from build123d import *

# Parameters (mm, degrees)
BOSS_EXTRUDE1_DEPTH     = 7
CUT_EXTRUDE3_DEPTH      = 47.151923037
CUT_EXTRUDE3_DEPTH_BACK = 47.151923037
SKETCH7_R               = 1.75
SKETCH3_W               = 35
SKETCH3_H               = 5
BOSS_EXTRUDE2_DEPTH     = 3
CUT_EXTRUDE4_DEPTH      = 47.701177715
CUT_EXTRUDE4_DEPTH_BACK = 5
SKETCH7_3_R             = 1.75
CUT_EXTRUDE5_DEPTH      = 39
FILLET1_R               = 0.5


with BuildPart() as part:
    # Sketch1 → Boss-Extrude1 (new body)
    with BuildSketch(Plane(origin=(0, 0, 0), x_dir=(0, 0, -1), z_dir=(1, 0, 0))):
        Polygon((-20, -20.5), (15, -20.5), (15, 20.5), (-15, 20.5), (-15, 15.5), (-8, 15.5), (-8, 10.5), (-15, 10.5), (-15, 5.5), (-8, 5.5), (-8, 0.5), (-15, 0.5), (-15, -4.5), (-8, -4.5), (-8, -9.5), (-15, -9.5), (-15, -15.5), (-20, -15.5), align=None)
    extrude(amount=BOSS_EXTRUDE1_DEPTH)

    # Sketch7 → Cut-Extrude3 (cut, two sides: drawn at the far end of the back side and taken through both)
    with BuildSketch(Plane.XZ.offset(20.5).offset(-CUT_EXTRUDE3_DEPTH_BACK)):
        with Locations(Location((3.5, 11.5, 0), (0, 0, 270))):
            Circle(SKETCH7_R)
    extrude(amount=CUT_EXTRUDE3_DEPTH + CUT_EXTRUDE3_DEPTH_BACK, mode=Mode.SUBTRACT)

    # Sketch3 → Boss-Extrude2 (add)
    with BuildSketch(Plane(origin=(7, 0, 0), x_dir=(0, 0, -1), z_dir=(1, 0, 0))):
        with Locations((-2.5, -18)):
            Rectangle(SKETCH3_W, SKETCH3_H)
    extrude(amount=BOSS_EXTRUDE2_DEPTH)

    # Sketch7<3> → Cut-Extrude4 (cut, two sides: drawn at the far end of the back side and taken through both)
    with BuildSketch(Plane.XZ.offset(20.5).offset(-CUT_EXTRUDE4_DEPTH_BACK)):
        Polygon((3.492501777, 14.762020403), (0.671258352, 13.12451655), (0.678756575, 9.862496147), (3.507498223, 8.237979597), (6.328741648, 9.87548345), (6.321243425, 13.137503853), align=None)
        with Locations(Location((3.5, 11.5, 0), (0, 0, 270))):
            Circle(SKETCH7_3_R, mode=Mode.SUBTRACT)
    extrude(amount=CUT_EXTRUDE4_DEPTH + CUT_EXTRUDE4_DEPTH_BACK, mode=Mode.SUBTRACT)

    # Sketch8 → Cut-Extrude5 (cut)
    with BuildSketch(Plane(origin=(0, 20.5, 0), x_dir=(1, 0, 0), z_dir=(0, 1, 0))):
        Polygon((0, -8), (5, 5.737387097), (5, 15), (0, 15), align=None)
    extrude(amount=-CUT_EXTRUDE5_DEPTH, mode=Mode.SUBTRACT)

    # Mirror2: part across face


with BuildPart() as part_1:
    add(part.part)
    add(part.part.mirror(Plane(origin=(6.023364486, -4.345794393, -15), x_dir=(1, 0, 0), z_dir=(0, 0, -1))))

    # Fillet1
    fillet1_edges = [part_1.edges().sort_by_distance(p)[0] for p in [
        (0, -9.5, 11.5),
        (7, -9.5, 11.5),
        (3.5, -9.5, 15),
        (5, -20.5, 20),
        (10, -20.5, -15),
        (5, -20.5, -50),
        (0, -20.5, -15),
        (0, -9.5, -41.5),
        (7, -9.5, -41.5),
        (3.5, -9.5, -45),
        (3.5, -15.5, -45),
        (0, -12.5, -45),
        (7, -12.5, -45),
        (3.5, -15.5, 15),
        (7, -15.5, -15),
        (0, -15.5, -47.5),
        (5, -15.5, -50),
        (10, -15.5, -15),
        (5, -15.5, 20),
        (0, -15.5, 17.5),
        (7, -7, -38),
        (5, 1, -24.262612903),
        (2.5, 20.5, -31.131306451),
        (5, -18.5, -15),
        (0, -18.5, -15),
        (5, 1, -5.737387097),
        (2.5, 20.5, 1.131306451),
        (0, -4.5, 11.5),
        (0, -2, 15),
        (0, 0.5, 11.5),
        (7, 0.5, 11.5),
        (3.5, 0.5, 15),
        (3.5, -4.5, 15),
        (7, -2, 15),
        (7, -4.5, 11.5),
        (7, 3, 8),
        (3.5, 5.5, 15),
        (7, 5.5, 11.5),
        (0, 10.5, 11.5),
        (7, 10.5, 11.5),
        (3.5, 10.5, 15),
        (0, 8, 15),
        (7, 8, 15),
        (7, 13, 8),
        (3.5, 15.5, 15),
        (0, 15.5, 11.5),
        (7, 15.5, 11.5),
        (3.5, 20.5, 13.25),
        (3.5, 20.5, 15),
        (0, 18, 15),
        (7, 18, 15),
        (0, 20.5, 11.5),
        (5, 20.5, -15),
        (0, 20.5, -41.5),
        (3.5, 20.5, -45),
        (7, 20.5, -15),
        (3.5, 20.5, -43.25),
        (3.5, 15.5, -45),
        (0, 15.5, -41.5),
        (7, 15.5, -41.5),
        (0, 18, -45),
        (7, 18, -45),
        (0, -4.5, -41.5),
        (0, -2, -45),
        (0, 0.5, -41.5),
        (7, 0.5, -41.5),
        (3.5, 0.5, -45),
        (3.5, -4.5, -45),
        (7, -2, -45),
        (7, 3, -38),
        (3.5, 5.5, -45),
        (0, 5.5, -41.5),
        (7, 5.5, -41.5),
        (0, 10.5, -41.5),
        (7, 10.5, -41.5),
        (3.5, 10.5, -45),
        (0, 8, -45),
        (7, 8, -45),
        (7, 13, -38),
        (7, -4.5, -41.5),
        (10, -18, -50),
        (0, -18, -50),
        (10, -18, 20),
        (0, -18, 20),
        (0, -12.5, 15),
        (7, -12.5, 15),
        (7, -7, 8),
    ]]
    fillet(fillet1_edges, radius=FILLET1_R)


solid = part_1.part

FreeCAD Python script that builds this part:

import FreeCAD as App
import Part
import Sketcher
from FreeCAD import Vector
Q = App.Units.Quantity


def edges_at(feature, points):
    """Names of the edges that pass closest to the given points."""
    edges = feature.Shape.Edges
    near = lambda p: min(range(len(edges)), key=lambda i: edges[i].distToShape(Part.Vertex(*p))[0])
    return sorted({f"Edge{near(p) + 1}" for p in points})


def add_polygon(sketch, points):
    """Adds a closed chain of lines whose ends are joined by coincident constraints."""
    first, n = sketch.GeometryCount, len(points)
    for a, b in zip(points, points[1:] + points[:1]):
        sketch.addGeometry(Part.LineSegment(App.Vector(*a, 0), App.Vector(*b, 0)), False)
    for i in range(n):
        sketch.addConstraint(Sketcher.Constraint("Coincident", first + i, 2, first + (i + 1) % n, 1))

doc = App.newDocument("Part")
body = doc.addObject("PartDesign::Body", "Body")

# Sketch on YZ plane
sketch1 = doc.addObject("Sketcher::SketchObject", "Sketch")
body.addObject(sketch1)
sketch1.AttachmentSupport = (doc.YZ_Plane, [""])
sketch1.MapMode = "FlatFace"
add_polygon(sketch1, [(-20.5, 20), (-20.5, -15), (20.5, -15), (20.5, 15), (15.5, 15), (15.5, 8), (10.5, 8), (10.5, 15), (5.5, 15), (5.5, 8), (0.5, 8), (0.5, 15), (-4.5, 15), (-4.5, 8), (-9.5, 8), (-9.5, 15), (-15.5, 15), (-15.5, 20)])  # lines 0-17
sketch1.addConstraint(Sketcher.Constraint("Vertical", 0))
sketch1.addConstraint(Sketcher.Constraint("Horizontal", 1))
sketch1.addConstraint(Sketcher.Constraint("Vertical", 2))
sketch1.addConstraint(Sketcher.Constraint("Horizontal", 3))
sketch1.addConstraint(Sketcher.Constraint("Vertical", 4))
sketch1.addConstraint(Sketcher.Constraint("Horizontal", 5))
sketch1.addConstraint(Sketcher.Constraint("Vertical", 6))
sketch1.addConstraint(Sketcher.Constraint("Horizontal", 7))
sketch1.addConstraint(Sketcher.Constraint("Vertical", 8))
sketch1.addConstraint(Sketcher.Constraint("Horizontal", 9))
sketch1.addConstraint(Sketcher.Constraint("Vertical", 10))
sketch1.addConstraint(Sketcher.Constraint("Horizontal", 11))
sketch1.addConstraint(Sketcher.Constraint("Vertical", 12))
sketch1.addConstraint(Sketcher.Constraint("Horizontal", 13))
sketch1.addConstraint(Sketcher.Constraint("Vertical", 14))
sketch1.addConstraint(Sketcher.Constraint("Horizontal", 15))
sketch1.addConstraint(Sketcher.Constraint("Vertical", 16))
sketch1.addConstraint(Sketcher.Constraint("Horizontal", 17))
sketch1.addConstraint(Sketcher.Constraint("Symmetric", 0, 2, 2, 2, -1, 1))
sketch1.addConstraint(Sketcher.Constraint("Symmetric", 3, 2, 15, 2, -2))
sketch1.addConstraint(Sketcher.Constraint("Horizontal", 3, 2, 6, 2))
sketch1.addConstraint(Sketcher.Constraint("Horizontal", 5, 2, 8, 2))
sketch1.addConstraint(Sketcher.Constraint("Horizontal", 7, 2, 10, 2))
sketch1.addConstraint(Sketcher.Constraint("Horizontal", 9, 2, 12, 2))
sketch1.addConstraint(Sketcher.Constraint("Equal", 3, 5))
sketch1.addConstraint(Sketcher.Constraint("Equal", 5, 7))
sketch1.addConstraint(Sketcher.Constraint("Equal", 7, 9))
sketch1.addConstraint(Sketcher.Constraint("Equal", 9, 11))
sketch1.addConstraint(Sketcher.Constraint("Equal", 11, 13))
sketch1.addConstraint(Sketcher.Constraint("Equal", 17, 16))
sketch1.addConstraint(Sketcher.Constraint("DistanceX", 1, 1, 1, 2, 41.0))
sketch1.addConstraint(Sketcher.Constraint("DistanceX", 3, 2, 3, 1, 5.0))
sketch1.addConstraint(Sketcher.Constraint("DistanceY", 0, 2, 0, 1, 35.0))
sketch1.addConstraint(Sketcher.Constraint("DistanceY", 4, 2, 4, 1, 7.0))
pad1 = doc.addObject("PartDesign::Pad", "Pad")
body.addObject(pad1)
pad1.Profile = sketch1
pad1.Length = 7

# Sketch on XZ plane
sketch2 = doc.addObject("Sketcher::SketchObject", "Sketch001")
body.addObject(sketch2)
sketch2.AttachmentSupport = (doc.XZ_Plane, [""])
sketch2.MapMode = "FlatFace"
sketch2.AttachmentOffset = App.Placement(Vector(0, 0, 20.5), App.Rotation())
sketch2.addGeometry(Part.Circle(Vector(3.5, 11.5, 0), Vector(0, 0, 1), 1.75), False)
sketch2.addConstraint(Sketcher.Constraint("Diameter", 0, 3.5))
sketch2.addConstraint(Sketcher.Constraint("DistanceX", -1, 1, 0, 3, 3.5))
sketch2.addConstraint(Sketcher.Constraint("DistanceY", -1, 1, 0, 3, 11.5))
pocket1 = doc.addObject("PartDesign::Pocket", "Pocket")
body.addObject(pocket1)
pocket1.Profile = sketch2
pocket1.Type = "ThroughAll"
pocket1.Midplane = True

# Sketch on YZ plane
sketch3 = doc.addObject("Sketcher::SketchObject", "Sketch002")
body.addObject(sketch3)
sketch3.AttachmentSupport = (doc.YZ_Plane, [""])
sketch3.MapMode = "FlatFace"
sketch3.AttachmentOffset = App.Placement(Vector(0, 0, 7), App.Rotation())
add_polygon(sketch3, [(-15.5, 20), (-20.5, 20), (-20.5, -15), (-15.5, -15)])  # lines 0-3
sketch3.addConstraint(Sketcher.Constraint("Horizontal", 0))
sketch3.addConstraint(Sketcher.Constraint("Vertical", 1))
sketch3.addConstraint(Sketcher.Constraint("Horizontal", 2))
sketch3.addConstraint(Sketcher.Constraint("Vertical", 3))
sketch3.addConstraint(Sketcher.Constraint("DistanceX", 0, 2, 0, 1, 5.0))
sketch3.addConstraint(Sketcher.Constraint("DistanceY", 1, 2, 1, 1, 35.0))
sketch3.addConstraint(Sketcher.Constraint("DistanceY", -1, 1, 0, 2, 20.0))
sketch3.addConstraint(Sketcher.Constraint("DistanceX", 0, 2, -1, 1, 20.5))
pad2 = doc.addObject("PartDesign::Pad", "Pad001")
body.addObject(pad2)
pad2.Profile = sketch3
pad2.Length = 3

# Sketch on XZ plane
sketch4 = doc.addObject("Sketcher::SketchObject", "Sketch003")
body.addObject(sketch4)
sketch4.AttachmentSupport = (doc.XZ_Plane, [""])
sketch4.MapMode = "FlatFace"
sketch4.AttachmentOffset = App.Placement(Vector(0, 0, 20.5), App.Rotation())
add_polygon(sketch4, [(3.492502, 14.76202), (0.671258, 13.124517), (0.678757, 9.862496), (3.507498, 8.23798), (6.328742, 9.875483), (6.321243, 13.137504)])  # lines 0-5
sketch4.addGeometry(Part.Circle(Vector(3.5, 11.5, 0), Vector(0, 0, 1), 1.75), False)  # 6
sketch4.addConstraint(Sketcher.Constraint("Parallel", 0, 3))
sketch4.addConstraint(Sketcher.Constraint("Parallel", 1, 4))
sketch4.addConstraint(Sketcher.Constraint("Parallel", 2, 5))
sketch4.addConstraint(Sketcher.Constraint("Equal", 0, 1))
sketch4.addConstraint(Sketcher.Constraint("Equal", 1, 2))
sketch4.addConstraint(Sketcher.Constraint("Equal", 2, 3))
sketch4.addConstraint(Sketcher.Constraint("Diameter", 6, 3.5))
sketch4.addConstraint(Sketcher.Constraint("DistanceX", -1, 1, 6, 3, 3.5))
sketch4.addConstraint(Sketcher.Constraint("DistanceY", -1, 1, 6, 3, 11.5))
sketch4.addConstraint(Sketcher.Constraint("DistanceX", -1, 1, 2, 2, 3.507498))
sketch4.addConstraint(Sketcher.Constraint("DistanceX", -1, 1, 5, 2, 3.492502))
sketch4.addConstraint(Sketcher.Constraint("DistanceX", 0, 2, 1, 2, 0.007498))
sketch4.addConstraint(Sketcher.Constraint("Distance", 0, 3.262029))
sketch4.addConstraint(Sketcher.Constraint("DistanceX", -1, 1, 0, 2, 0.671258))
sketch4.addConstraint(Sketcher.Constraint("DistanceY", -1, 1, 2, 2, 8.23798))
pocket2 = doc.addObject("PartDesign::Pocket", "Pocket001")
body.addObject(pocket2)
pocket2.Profile = sketch4
pocket2.Type = "TwoLengths"
pocket2.Length = 47.701178
pocket2.Length2 = 5
pocket2.Reversed = True

# Sketch on XZ plane
sketch5 = doc.addObject("Sketcher::SketchObject", "Sketch004")
body.addObject(sketch5)
sketch5.AttachmentSupport = (doc.XZ_Plane, [""])
sketch5.MapMode = "FlatFace"
sketch5.AttachmentOffset = App.Placement(Vector(0, 0, -20.5), App.Rotation())
add_polygon(sketch5, [(0, 8), (5, -5.737387), (5, -15), (0, -15)])  # lines 0-3
sketch5.addConstraint(Sketcher.Constraint("Vertical", 1))
sketch5.addConstraint(Sketcher.Constraint("Horizontal", 2))
sketch5.addConstraint(Sketcher.Constraint("Vertical", 3))
sketch5.addConstraint(Sketcher.Constraint("PointOnObject", 2, 2, -2))
sketch5.addConstraint(Sketcher.Constraint("DistanceX", 2, 2, 2, 1, 5.0))
sketch5.addConstraint(Sketcher.Constraint("DistanceY", 3, 1, 3, 2, 23.0))
sketch5.addConstraint(Sketcher.Constraint("Angle", 0, Q("-70 deg")))
sketch5.addConstraint(Sketcher.Constraint("DistanceY", 1, 2, -1, 1, 15.0))
pocket3 = doc.addObject("PartDesign::Pocket", "Pocket002")
body.addObject(pocket3)
pocket3.Profile = sketch5
pocket3.Length = 39
pocket3.Reversed = True
body2 = doc.addObject("PartDesign::Body", "Body001")
doc.recompute()

body2.BaseFeature = body
doc.recompute()

mirroring = doc.addObject("Part::Mirroring", "Mirroring")
mirroring.Source = body
mirroring.Base = Vector(6.023364, -4.345794, -15)
mirroring.Normal = Vector(0, 0, -1)
body3 = doc.addObject("PartDesign::Body", "Body002")
body3.BaseFeature = mirroring
boolean = doc.addObject("PartDesign::Boolean", "Boolean")
body2.addObject(boolean)
boolean.Type = "Fuse"
boolean.addObjects([body3])
doc.recompute()

fillet = doc.addObject("PartDesign::Fillet", "Fillet")
body2.addObject(fillet)
fillet.Base = (boolean, edges_at(boolean, [
    (0, -9.5, 11.5),
    (7, -9.5, 11.5),
    (3.5, -9.5, 15),
    (5, -20.5, 20),
    (10, -20.5, -15),
    (5, -20.5, -50),
    (0, -20.5, -15),
    (0, -9.5, -41.5),
    (7, -9.5, -41.5),
    (3.5, -9.5, -45),
    (3.5, -15.5, -45),
    (0, -12.5, -45),
    (7, -12.5, -45),
    (3.5, -15.5, 15),
    (7, -15.5, -15),
    (0, -15.5, -47.5),
    (5, -15.5, -50),
    (10, -15.5, -15),
    (5, -15.5, 20),
    (0, -15.5, 17.5),
    (7, -7, -38),
    (5, 1, -24.263),
    (2.5, 20.5, -31.131),
    (5, -18.5, -15),
    (0, -18.5, -15),
    (5, 1, -5.737),
    (2.5, 20.5, 1.131),
    (0, -4.5, 11.5),
    (0, -2, 15),
    (0, 0.5, 11.5),
    (7, 0.5, 11.5),
    (3.5, 0.5, 15),
    (3.5, -4.5, 15),
    (7, -2, 15),
    (7, -4.5, 11.5),
    (7, 3, 8),
    (3.5, 5.5, 15),
    (7, 5.5, 11.5),
    (0, 10.5, 11.5),
    (7, 10.5, 11.5),
    (3.5, 10.5, 15),
    (0, 8, 15),
    (7, 8, 15),
    (7, 13, 8),
    (3.5, 15.5, 15),
    (0, 15.5, 11.5),
    (7, 15.5, 11.5),
    (3.5, 20.5, 13.25),
    (3.5, 20.5, 15),
    (0, 18, 15),
    (7, 18, 15),
    (0, 20.5, 11.5),
    (5, 20.5, -15),
    (0, 20.5, -41.5),
    (3.5, 20.5, -45),
    (7, 20.5, -15),
    (3.5, 20.5, -43.25),
    (3.5, 15.5, -45),
    (0, 15.5, -41.5),
    (7, 15.5, -41.5),
    (0, 18, -45),
    (7, 18, -45),
    (0, -4.5, -41.5),
    (0, -2, -45),
    (0, 0.5, -41.5),
    (7, 0.5, -41.5),
    (3.5, 0.5, -45),
    (3.5, -4.5, -45),
    (7, -2, -45),
    (7, 3, -38),
    (3.5, 5.5, -45),
    (0, 5.5, -41.5),
    (7, 5.5, -41.5),
    (0, 10.5, -41.5),
    (7, 10.5, -41.5),
    (3.5, 10.5, -45),
    (0, 8, -45),
    (7, 8, -45),
    (7, 13, -38),
    (7, -4.5, -41.5),
    (10, -18, -50),
    (0, -18, -50),
    (10, -18, 20),
    (0, -18, 20),
    (0, -12.5, 15),
    (7, -12.5, 15),
    (7, -7, 8),
]))
fillet.Radius = 0.5
mirroring.Visibility = False

doc.recompute()
